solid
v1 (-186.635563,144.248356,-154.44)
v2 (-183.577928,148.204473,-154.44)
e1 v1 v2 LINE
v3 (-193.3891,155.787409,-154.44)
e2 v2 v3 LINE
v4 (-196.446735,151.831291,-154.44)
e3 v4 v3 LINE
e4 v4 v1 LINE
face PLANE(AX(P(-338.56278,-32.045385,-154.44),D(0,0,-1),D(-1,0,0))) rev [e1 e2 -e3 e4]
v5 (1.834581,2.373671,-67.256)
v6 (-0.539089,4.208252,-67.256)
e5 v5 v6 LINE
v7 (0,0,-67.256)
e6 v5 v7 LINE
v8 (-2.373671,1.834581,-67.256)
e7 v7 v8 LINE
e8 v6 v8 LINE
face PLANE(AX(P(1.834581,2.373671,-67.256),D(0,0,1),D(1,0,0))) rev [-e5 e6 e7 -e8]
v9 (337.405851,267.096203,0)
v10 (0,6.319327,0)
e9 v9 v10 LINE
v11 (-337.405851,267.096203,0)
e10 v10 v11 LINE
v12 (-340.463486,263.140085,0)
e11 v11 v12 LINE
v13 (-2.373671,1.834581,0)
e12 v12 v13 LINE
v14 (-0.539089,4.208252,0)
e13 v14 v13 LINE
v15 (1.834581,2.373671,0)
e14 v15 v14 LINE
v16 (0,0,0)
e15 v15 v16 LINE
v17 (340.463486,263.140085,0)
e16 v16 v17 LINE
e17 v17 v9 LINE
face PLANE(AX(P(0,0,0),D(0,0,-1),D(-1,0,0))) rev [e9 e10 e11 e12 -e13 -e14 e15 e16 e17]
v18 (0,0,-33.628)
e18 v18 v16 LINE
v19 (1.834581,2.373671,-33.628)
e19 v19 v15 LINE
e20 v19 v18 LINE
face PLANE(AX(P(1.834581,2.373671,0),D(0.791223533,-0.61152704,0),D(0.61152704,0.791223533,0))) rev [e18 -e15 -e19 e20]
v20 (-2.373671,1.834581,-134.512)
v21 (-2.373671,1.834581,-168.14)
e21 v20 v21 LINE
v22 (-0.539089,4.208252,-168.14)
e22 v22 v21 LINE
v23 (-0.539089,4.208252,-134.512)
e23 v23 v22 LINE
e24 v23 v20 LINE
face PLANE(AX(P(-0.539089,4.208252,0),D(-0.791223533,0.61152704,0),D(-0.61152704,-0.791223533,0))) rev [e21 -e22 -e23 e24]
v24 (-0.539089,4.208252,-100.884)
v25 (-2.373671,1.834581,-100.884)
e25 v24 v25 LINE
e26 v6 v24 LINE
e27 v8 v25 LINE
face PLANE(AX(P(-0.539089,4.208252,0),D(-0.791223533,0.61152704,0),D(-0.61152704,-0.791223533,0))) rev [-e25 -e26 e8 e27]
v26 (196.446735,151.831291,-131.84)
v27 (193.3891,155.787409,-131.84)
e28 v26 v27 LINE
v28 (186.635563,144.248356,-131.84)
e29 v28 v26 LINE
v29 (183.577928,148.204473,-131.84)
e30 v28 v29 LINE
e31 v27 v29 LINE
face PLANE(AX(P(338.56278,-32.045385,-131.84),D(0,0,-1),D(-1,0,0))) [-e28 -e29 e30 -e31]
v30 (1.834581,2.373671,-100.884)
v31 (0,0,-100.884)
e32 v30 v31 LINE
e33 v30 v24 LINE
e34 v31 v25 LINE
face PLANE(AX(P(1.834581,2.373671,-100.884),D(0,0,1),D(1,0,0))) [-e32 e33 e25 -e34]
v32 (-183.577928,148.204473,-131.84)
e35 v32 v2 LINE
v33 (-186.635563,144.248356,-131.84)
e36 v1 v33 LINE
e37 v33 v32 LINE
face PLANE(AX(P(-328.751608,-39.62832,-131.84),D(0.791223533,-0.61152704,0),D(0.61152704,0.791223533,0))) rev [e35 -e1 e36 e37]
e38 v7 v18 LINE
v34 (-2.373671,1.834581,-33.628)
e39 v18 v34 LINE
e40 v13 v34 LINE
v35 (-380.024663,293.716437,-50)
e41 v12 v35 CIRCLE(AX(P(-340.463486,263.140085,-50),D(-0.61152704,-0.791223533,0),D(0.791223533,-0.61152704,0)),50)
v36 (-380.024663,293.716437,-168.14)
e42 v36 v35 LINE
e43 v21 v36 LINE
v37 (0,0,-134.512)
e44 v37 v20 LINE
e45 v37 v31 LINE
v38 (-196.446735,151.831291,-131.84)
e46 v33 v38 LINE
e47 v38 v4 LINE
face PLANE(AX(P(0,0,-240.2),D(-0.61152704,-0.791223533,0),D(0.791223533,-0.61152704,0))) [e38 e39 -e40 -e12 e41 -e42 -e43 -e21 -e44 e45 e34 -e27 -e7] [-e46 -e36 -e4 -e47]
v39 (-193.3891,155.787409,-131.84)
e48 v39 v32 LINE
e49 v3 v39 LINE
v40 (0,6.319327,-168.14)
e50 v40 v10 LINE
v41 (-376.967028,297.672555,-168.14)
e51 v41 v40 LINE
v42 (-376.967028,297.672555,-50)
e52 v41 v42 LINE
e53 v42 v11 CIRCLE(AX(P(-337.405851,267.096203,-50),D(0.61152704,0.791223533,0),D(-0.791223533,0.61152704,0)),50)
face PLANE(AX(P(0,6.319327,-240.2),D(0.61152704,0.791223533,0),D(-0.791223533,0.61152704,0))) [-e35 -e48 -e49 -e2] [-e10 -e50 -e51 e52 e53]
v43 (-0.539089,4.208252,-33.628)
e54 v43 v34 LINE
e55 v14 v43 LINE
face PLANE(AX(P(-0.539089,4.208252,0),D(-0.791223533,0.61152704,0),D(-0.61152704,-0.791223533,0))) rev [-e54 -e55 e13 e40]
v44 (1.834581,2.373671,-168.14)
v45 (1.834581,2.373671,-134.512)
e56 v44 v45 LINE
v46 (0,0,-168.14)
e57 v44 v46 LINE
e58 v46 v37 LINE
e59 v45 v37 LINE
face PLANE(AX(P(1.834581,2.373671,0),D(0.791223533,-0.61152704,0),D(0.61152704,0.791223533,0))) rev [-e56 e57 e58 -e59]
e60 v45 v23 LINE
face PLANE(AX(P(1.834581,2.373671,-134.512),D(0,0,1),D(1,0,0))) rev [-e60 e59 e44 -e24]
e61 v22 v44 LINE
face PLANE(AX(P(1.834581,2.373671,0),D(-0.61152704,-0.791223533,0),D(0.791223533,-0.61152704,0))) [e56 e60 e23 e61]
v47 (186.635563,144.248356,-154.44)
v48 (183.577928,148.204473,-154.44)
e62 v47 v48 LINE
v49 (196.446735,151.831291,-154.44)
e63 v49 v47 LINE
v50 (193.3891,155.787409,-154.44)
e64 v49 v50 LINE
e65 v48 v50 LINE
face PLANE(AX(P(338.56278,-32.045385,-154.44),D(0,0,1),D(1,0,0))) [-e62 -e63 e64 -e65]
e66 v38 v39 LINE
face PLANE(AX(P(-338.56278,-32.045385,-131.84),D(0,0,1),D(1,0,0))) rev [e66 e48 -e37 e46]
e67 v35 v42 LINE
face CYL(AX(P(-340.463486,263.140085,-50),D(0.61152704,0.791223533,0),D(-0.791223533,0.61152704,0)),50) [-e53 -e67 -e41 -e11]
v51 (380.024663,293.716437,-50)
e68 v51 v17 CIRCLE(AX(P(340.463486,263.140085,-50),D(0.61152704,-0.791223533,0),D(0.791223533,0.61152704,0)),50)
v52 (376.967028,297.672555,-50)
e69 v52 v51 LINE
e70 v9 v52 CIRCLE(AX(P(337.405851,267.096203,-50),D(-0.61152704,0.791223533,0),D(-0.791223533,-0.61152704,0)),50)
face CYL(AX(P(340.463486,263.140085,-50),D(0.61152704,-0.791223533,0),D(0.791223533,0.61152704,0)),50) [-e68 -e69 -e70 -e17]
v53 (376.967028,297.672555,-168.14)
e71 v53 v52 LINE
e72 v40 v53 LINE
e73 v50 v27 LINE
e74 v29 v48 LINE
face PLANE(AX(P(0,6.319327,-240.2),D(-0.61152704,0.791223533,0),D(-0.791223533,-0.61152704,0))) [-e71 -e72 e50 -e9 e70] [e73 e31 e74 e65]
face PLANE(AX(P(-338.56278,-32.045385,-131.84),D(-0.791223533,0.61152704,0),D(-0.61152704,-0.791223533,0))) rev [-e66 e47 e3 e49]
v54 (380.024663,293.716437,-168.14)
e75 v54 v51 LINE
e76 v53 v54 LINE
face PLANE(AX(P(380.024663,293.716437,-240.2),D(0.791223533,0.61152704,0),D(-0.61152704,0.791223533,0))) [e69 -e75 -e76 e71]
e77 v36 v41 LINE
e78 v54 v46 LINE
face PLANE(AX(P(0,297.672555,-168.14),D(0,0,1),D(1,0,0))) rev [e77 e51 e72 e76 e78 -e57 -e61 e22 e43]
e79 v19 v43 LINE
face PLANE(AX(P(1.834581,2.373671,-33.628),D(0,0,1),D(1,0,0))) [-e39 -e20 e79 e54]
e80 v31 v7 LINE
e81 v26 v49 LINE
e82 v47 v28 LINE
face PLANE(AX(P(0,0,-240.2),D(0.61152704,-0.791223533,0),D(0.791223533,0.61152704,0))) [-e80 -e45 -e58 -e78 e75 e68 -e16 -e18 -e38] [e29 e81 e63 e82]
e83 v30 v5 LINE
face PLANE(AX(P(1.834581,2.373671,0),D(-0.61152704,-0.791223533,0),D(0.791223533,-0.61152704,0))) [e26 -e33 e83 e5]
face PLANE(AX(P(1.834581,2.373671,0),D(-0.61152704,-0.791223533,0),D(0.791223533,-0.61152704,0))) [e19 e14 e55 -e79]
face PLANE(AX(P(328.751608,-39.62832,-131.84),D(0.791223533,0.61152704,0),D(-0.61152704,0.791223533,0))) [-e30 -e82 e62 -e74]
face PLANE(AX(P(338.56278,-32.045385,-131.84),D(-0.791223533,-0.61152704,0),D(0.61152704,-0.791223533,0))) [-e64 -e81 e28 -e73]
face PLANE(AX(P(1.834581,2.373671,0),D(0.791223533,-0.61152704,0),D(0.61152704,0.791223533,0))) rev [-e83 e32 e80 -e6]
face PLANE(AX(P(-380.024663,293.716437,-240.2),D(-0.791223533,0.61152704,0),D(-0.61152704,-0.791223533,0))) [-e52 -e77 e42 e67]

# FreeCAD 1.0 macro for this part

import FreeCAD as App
import Part
import Sketcher

V = App.Vector
Q = App.Units.Quantity


def edges_at(feature, points):
    """Names of the edges that pass closest to the given points."""
    edges = feature.Shape.Edges
    near = lambda p: min(range(len(edges)), key=lambda i: edges[i].distToShape(Part.Vertex(*p))[0])
    return sorted({f"Edge{near(p) + 1}" for p in points})

doc = App.newDocument("Part")
params = doc.addObject("Spreadsheet::Sheet", "Params")
for row, (alias, value) in enumerate([
    ("sketch1_length", "5 mm"),
    ("sketch1_length2", "480.3 mm"),
    ("pad1_length", "240.2 mm"),
    ("sketch2_height", "72.06 mm"),
    ("sketch3_width", "12.4 mm"),
    ("sketch3_height", "22.6 mm"),
    ("pocket2_length", "1024.335468 mm"),
    ("fillet_radius", "50 mm"),
    ("sketch4_width", "3 mm"),
    ("pocket3_length", "3 mm"),
], start=1):
    params.set(f"A{row}", alias)
    params.set(f"B{row}", "=" + value)
    params.setAlias(f"B{row}", alias)

body = doc.addObject("PartDesign::Body", "Body")

sketch1 = doc.addObject("Sketcher::SketchObject", "Sketch")
body.addObject(sketch1)
sketch1.AttachmentSupport = (doc.XY_Plane, [""])
sketch1.MapMode = "FlatFace"
sketch1.addGeometry([
    Part.LineSegment(V(0, 0, 0), V(380, 294, 0)),
    Part.LineSegment(V(380, 294, 0), V(377, 298, 0)),
    Part.LineSegment(V(377, 298, 0), V(0, 6, 0)),
    Part.LineSegment(V(0, 6, 0), V(-377, 298, 0)),
    Part.LineSegment(V(-377, 298, 0), V(-380, 294, 0)),
    Part.LineSegment(V(-380, 294, 0), V(0, 0, 0)),
], False)
sketch1.addConstraint([
    Sketcher.Constraint("Coincident", 0, 2, 1, 1),
    Sketcher.Constraint("Coincident", 1, 2, 2, 1),
    Sketcher.Constraint("Coincident", 2, 2, 3, 1),
    Sketcher.Constraint("Coincident", 3, 2, 4, 1),
    Sketcher.Constraint("Coincident", 4, 2, 5, 1),
    Sketcher.Constraint("Coincident", 5, 2, 0, 1),
    Sketcher.Constraint("Coincident", 5, 2, -1, 1),
    Sketcher.Constraint("Symmetric", 1, 2, 3, 2, -2),
    Sketcher.Constraint("Symmetric", 0, 2, 4, 2, -2),
    Sketcher.Constraint("PointOnObject", 2, 2, -2),
    Sketcher.Constraint("Perpendicular", 0, 1),
    Sketcher.Constraint("Perpendicular", 1, 2),
    Sketcher.Constraint("Distance", 1, 5.0),
    Sketcher.Constraint("Angle", 0, Q("37.7 deg")),
    Sketcher.Constraint("Distance", 0, 480.3),
])
sketch1.setExpression("Constraints[12]", "Params.sketch1_length")
sketch1.setExpression("Constraints[14]", "Params.sketch1_length2")
pad1 = doc.addObject("PartDesign::Pad", "Pad")
body.addObject(pad1)
pad1.Profile = sketch1
pad1.setExpression("Length", "Params.pad1_length")
pad1.Reversed = True

sketch2 = doc.addObject("Sketcher::SketchObject", "Sketch001")
body.addObject(sketch2)
sketch2.AttachmentSupport = (doc.XZ_Plane, [""])
sketch2.MapMode = "FlatFace"
sketch2.addGeometry([
    Part.LineSegment(V(-380, -240, 0), V(-380, -168, 0)),
    Part.LineSegment(V(-380, -168, 0), V(380, -168, 0)),
    Part.LineSegment(V(380, -168, 0), V(380, -240, 0)),
    Part.LineSegment(V(380, -240, 0), V(-380, -240, 0)),
], False)
sketch2.addConstraint([
    Sketcher.Constraint("Coincident", 0, 2, 1, 1),
    Sketcher.Constraint("Coincident", 1, 2, 2, 1),
    Sketcher.Constraint("Coincident", 2, 2, 3, 1),
    Sketcher.Constraint("Coincident", 3, 2, 0, 1),
    Sketcher.Constraint("Vertical", 0),
    Sketcher.Constraint("Horizontal", 1),
    Sketcher.Constraint("Vertical", 2),
    Sketcher.Constraint("Horizontal", 3),
    Sketcher.Constraint("DistanceY", 0, 1, 0, 2, 72.06),
    Sketcher.Constraint("DistanceY", 2, 2, -1, 1, 240.2),
    Sketcher.Constraint("DistanceX", 1, 1, 1, 2, 760.049326),
    Sketcher.Constraint("DistanceX", 0, 2, -1, 1, 380.024663),
])
sketch2.setExpression("Constraints[8]", "Params.sketch2_height")
pocket1 = doc.addObject("PartDesign::Pocket", "Pocket")
body.addObject(pocket1)
pocket1.Profile = sketch2
pocket1.Type = "ThroughAll"
pocket1.Midplane = True

sketch3 = doc.addObject("Sketcher::SketchObject", "Sketch002")
body.addObject(sketch3)
sketch3.Placement = App.Placement(V(3.057635, 3.956118, 0), App.Rotation(V(0.791223533, -0.61152704, 0), V(0, 0, -1), V(0.61152704, 0.791223533, 0), "ZXY"))
sketch3.addGeometry([
    Part.LineSegment(V(-248, 154, 0), V(-248, 132, 0)),
    Part.LineSegment(V(-248, 132, 0), V(-236, 132, 0)),
    Part.LineSegment(V(-236, 132, 0), V(-236, 154, 0)),
    Part.LineSegment(V(-236, 154, 0), V(-248, 154, 0)),
], False)
sketch3.addConstraint([
    Sketcher.Constraint("Coincident", 0, 2, 1, 1),
    Sketcher.Constraint("Coincident", 1, 2, 2, 1),
    Sketcher.Constraint("Coincident", 2, 2, 3, 1),
    Sketcher.Constraint("Coincident", 3, 2, 0, 1),
    Sketcher.Constraint("Vertical", 0),
    Sketcher.Constraint("Horizontal", 1),
    Sketcher.Constraint("Vertical", 2),
    Sketcher.Constraint("Horizontal", 3),
    Sketcher.Constraint("DistanceX", 1, 1, 1, 2, 12.4),
    Sketcher.Constraint("DistanceY", 0, 2, 0, 1, 22.6),
    Sketcher.Constraint("DistanceY", -1, 1, 0, 2, 131.84),
    Sketcher.Constraint("DistanceX", 0, 2, -1, 1, 248.28222),
])
sketch3.setExpression("Constraints[8]", "Params.sketch3_width")
sketch3.setExpression("Constraints[9]", "Params.sketch3_height")
pocket2 = doc.addObject("PartDesign::Pocket", "Pocket001")
body.addObject(pocket2)
pocket2.Profile = sketch3
pocket2.setExpression("Length", "Params.pocket2_length")
pocket2.Midplane = True
doc.recompute()

mirrored = doc.addObject("PartDesign::Mirrored", "Mirrored")
body.addObject(mirrored)
mirrored.Originals = [pocket2]
mirrored.MirrorPlane = (doc.YZ_Plane, [""])
body.Tip = mirrored
doc.recompute()

fillet = doc.addObject("PartDesign::Fillet", "Fillet")
body.addObject(fillet)
fillet.Base = (mirrored, edges_at(mirrored, [(-378.496, 295.694, 0), (378.496, 295.694, 0)]))
fillet.setExpression("Radius", "Params.fillet_radius")

sketch4 = doc.addObject("Sketcher::SketchObject", "Sketch003")
body.addObject(sketch4)
sketch4.Placement = App.Placement(V(0, 0, 0), App.Rotation(V(0.791223533, -0.61152704, 0), V(0, 0, 1), V(-0.61152704, -0.791223533, 0), "ZXY"))
sketch4.addGeometry([
    Part.LineSegment(V(-3, 0, 0), V(-3, -33.6, 0)),
    Part.LineSegment(V(-3, -33.6, 0), V(0, -33.6, 0)),
    Part.LineSegment(V(0, -33.6, 0), V(0, 0, 0)),
    Part.LineSegment(V(0, 0, 0), V(-3, 0, 0)),
    Part.LineSegment(V(-3, -67.3, 0), V(-3, -100.9, 0)),
    Part.LineSegment(V(-3, -100.9, 0), V(0, -100.9, 0)),
    Part.LineSegment(V(0, -100.9, 0), V(0, -67.3, 0)),
    Part.LineSegment(V(0, -67.3, 0), V(-3, -67.3, 0)),
    Part.LineSegment(V(-3, -134.5, 0), V(-3, -168.1, 0)),
    Part.LineSegment(V(-3, -168.1, 0), V(0, -168.1, 0)),
    Part.LineSegment(V(0, -168.1, 0), V(0, -134.5, 0)),
    Part.LineSegment(V(0, -134.5, 0), V(-3, -134.5, 0)),
], False)
sketch4.addConstraint([
    Sketcher.Constraint("Coincident", 0, 2, 1, 1),
    Sketcher.Constraint("Coincident", 1, 2, 2, 1),
    Sketcher.Constraint("Coincident", 2, 2, 3, 1),
    Sketcher.Constraint("Coincident", 3, 2, 0, 1),
    Sketcher.Constraint("Coincident", 4, 2, 5, 1),
    Sketcher.Constraint("Coincident", 5, 2, 6, 1),
    Sketcher.Constraint("Coincident", 6, 2, 7, 1),
    Sketcher.Constraint("Coincident", 7, 2, 4, 1),
    Sketcher.Constraint("Coincident", 8, 2, 9, 1),
    Sketcher.Constraint("Coincident", 9, 2, 10, 1),
    Sketcher.Constraint("Coincident", 10, 2, 11, 1),
    Sketcher.Constraint("Coincident", 11, 2, 8, 1),
    Sketcher.Constraint("Vertical", 0),
    Sketcher.Constraint("Horizontal", 1),
    Sketcher.Constraint("Vertical", 2),
    Sketcher.Constraint("Horizontal", 3),
    Sketcher.Constraint("Vertical", 4),
    Sketcher.Constraint("Horizontal", 5),
    Sketcher.Constraint("Vertical", 6),
    Sketcher.Constraint("Horizontal", 7),
    Sketcher.Constraint("Vertical", 8),
    Sketcher.Constraint("Horizontal", 9),
    Sketcher.Constraint("Vertical", 10),
    Sketcher.Constraint("Horizontal", 11),
    Sketcher.Constraint("Coincident", 2, 2, -1, 1),
    Sketcher.Constraint("PointOnObject", 5, 2, -2),
    Sketcher.Constraint("PointOnObject", 9, 2, -2),
    Sketcher.Constraint("Vertical", 3, 2, 4, 2),
    Sketcher.Constraint("Vertical", 7, 2, 8, 2),
    Sketcher.Constraint("Equal", 2, 4),
    Sketcher.Constraint("Equal", 6, 8),
    Sketcher.Constraint("DistanceX", 1, 1, 1, 2, 3.0),
    Sketcher.Constraint("DistanceY", 0, 2, 0, 1, 33.628),
    Sketcher.Constraint("DistanceY", 8, 2, -1, 1, 168.14),
    Sketcher.Constraint("DistanceY", 4, 2, -1, 1, 100.884),
])
sketch4.setExpression("Constraints[31]", "Params.sketch4_width")
pocket3 = doc.addObject("PartDesign::Pocket", "Pocket002")
body.addObject(pocket3)
pocket3.Profile = sketch4
pocket3.setExpression("Length", "Params.pocket3_length")

doc.recompute()
